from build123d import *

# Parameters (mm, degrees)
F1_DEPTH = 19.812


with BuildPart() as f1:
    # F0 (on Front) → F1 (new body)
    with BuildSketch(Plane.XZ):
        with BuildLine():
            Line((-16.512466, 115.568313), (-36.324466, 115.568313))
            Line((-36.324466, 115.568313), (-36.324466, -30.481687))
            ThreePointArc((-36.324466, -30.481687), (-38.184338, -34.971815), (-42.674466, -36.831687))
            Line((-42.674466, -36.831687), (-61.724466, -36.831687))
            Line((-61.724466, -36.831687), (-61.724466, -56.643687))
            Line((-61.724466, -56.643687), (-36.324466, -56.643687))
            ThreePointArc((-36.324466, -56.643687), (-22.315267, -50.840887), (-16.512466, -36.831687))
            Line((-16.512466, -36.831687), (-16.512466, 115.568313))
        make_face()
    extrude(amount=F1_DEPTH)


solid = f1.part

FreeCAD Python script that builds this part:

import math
import FreeCAD as App
import Part
import Sketcher

V = App.Vector
Q = App.Units.Quantity

doc = App.newDocument("Part")
body = doc.addObject("PartDesign::Body", "Body")

sketch1 = body.newObject("Sketcher::SketchObject", "Sketch")
sketch1.AttachmentSupport = (doc.getObject("XZ_Plane"), [""])
sketch1.MapMode = "FlatFace"
sketch1.addGeometry([
    Part.LineSegment(V(-16.512466, 115.568313, 0), V(-36.324466, 115.568313, 0)),
    Part.LineSegment(V(-36.324466, 115.568313, 0), V(-36.324466, -30.481687, 0)),
    Part.ArcOfCircle(Part.Circle(V(-42.674466, -30.481687, 0), V(0, 0, 1), 6.35), math.radians(-89.999998), math.radians(-0.000002)),
    Part.LineSegment(V(-42.674466, -36.831687, 0), V(-61.724466, -36.831687, 0)),
    Part.LineSegment(V(-61.724466, -36.831687, 0), V(-61.724466, -56.643687, 0)),
    Part.LineSegment(V(-61.724466, -56.643687, 0), V(-36.324466, -56.643687, 0)),
    Part.ArcOfCircle(Part.Circle(V(-36.324466, -36.831687, 0), V(0, 0, 1), 19.812), math.radians(-90), math.radians(0)),
    Part.LineSegment(V(-16.512466, -36.831687, 0), V(-16.512466, 115.568313, 0)),
], False)
sketch1.addConstraint([
    Sketcher.Constraint("Coincident", 0, 2, 1, 1),
    Sketcher.Constraint("Tangent", 1, 2, 2, 2),
    Sketcher.Constraint("Tangent", 2, 1, 3, 1),
    Sketcher.Constraint("Coincident", 3, 2, 4, 1),
    Sketcher.Constraint("Coincident", 4, 2, 5, 1),
    Sketcher.Constraint("Tangent", 5, 2, 6, 1),
    Sketcher.Constraint("Tangent", 6, 2, 7, 1),
    Sketcher.Constraint("Coincident", 7, 2, 0, 1),
    Sketcher.Constraint("Horizontal", 0),
    Sketcher.Constraint("Vertical", 1),
    Sketcher.Constraint("Horizontal", 3),
    Sketcher.Constraint("Vertical", 4),
    Sketcher.Constraint("Horizontal", 5),
    Sketcher.Constraint("Vertical", 7),
    Sketcher.Constraint("Horizontal", 6, 3, 2, 1),
    Sketcher.Constraint("Vertical", 6, 3, 0, 2),
    Sketcher.Constraint("DistanceX", 5, 1, 5, 2, Q("1 in")),
    Sketcher.Constraint("DistanceY", 7, 1, 7, 2, Q("6 in")),
    Sketcher.Constraint("Radius", 2, Q("0.25 in")),
    Sketcher.Constraint("Radius", 6, Q("0.78 in")),
    Sketcher.Constraint("DistanceX", 2, 3, -1, 1, Q("42.674466 mm")),
    Sketcher.Constraint("DistanceY", 2, 3, -1, 1, Q("30.481687 mm")),
])
pad1 = body.newObject("PartDesign::Pad", "Pad")
pad1.Profile = sketch1
pad1.Length = Q("0.78 in")

doc.recompute()
